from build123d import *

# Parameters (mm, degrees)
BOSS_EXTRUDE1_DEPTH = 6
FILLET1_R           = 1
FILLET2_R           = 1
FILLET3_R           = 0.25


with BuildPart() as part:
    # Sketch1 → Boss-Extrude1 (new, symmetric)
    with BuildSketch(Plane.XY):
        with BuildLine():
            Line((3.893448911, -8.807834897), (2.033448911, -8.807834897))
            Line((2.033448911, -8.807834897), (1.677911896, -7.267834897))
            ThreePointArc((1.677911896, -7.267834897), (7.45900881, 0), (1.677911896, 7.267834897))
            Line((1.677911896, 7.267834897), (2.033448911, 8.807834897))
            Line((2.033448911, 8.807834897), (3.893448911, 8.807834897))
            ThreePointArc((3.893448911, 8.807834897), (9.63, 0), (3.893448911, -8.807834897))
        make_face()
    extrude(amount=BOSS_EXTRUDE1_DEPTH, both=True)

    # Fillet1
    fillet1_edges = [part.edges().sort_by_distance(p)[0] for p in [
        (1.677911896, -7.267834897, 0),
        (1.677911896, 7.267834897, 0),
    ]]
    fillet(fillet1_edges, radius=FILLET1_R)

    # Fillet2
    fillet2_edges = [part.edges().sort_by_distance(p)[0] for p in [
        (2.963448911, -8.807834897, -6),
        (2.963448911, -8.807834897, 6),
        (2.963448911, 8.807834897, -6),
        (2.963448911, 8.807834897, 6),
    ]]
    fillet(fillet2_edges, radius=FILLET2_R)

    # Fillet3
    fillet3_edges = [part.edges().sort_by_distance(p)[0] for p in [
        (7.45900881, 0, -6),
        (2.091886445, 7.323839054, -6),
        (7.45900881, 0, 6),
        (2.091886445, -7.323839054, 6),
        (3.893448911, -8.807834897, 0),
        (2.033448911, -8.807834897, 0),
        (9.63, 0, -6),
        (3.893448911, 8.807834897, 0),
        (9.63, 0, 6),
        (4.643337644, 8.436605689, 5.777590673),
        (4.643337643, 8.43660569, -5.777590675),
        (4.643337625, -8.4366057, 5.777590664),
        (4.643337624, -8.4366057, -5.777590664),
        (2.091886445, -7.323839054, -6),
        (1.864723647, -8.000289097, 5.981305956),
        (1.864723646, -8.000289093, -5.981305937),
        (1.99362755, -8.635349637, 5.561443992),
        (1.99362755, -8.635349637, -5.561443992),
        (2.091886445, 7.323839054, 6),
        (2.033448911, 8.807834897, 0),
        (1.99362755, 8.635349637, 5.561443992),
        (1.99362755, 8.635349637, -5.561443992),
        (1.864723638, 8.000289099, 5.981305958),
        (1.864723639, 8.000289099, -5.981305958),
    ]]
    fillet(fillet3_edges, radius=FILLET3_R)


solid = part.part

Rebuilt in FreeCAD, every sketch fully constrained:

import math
import FreeCAD as App
import Part
import Sketcher
Q = App.Units.Quantity


def edges_at(feature, points):
    """Names of the edges that pass closest to the given points."""
    edges = feature.Shape.Edges
    near = lambda p: min(range(len(edges)), key=lambda i: edges[i].distToShape(Part.Vertex(*p))[0])
    return sorted({f"Edge{near(p) + 1}" for p in points})

doc = App.newDocument("Part")
params = doc.addObject("Spreadsheet::Sheet", "Params")
for row, (alias, value) in enumerate([
    ("sketch1_radius", "9.63 mm"),
    ("sketch1_width", "1.86 mm"),
    ("pad1_length", "12 mm"),
    ("fillet_radius", "1 mm"),
    ("fillet2_radius", "1 mm"),
    ("fillet3_radius", "0.25 mm"),
], start=1):
    params.set(f"A{row}", alias)
    params.set(f"B{row}", "=" + value)
    params.setAlias(f"B{row}", alias)

body = doc.addObject("PartDesign::Body", "Body")

# Sketch on XY plane
sketch1 = body.newObject("Sketcher::SketchObject", "Sketch")
sketch1.AttachmentSupport = (doc.getObject("XY_Plane"), [""])
sketch1.MapMode = "FlatFace"
sketch1.addGeometry(Part.LineSegment(App.Vector(2, -8.8, 0), App.Vector(3.9, -8.8, 0)), False)
sketch1.addGeometry(Part.ArcOfCircle(Part.Circle(App.Vector(0, 0, 0), App.Vector(0, 0, 1), 9.6), math.radians(-66), math.radians(66)), False)
sketch1.addGeometry(Part.LineSegment(App.Vector(3.9, 8.8, 0), App.Vector(2, 8.8, 0)), False)
sketch1.addGeometry(Part.LineSegment(App.Vector(2, 8.8, 0), App.Vector(1.7, 7.3, 0)), False)
sketch1.addGeometry(Part.ArcOfCircle(Part.Circle(App.Vector(0, 0, 0), App.Vector(0, 0, 1), 7.5), math.radians(-77), math.radians(77)), False)
sketch1.addGeometry(Part.LineSegment(App.Vector(1.7, -7.3, 0), App.Vector(2, -8.8, 0)), False)
sketch1.addConstraint(Sketcher.Constraint("Coincident", 0, 2, 1, 1))
sketch1.addConstraint(Sketcher.Constraint("Coincident", 1, 2, 2, 1))
sketch1.addConstraint(Sketcher.Constraint("Coincident", 2, 2, 3, 1))
sketch1.addConstraint(Sketcher.Constraint("Coincident", 3, 2, 4, 2))
sketch1.addConstraint(Sketcher.Constraint("Coincident", 4, 1, 5, 1))
sketch1.addConstraint(Sketcher.Constraint("Coincident", 5, 2, 0, 1))
sketch1.addConstraint(Sketcher.Constraint("Horizontal", 0))
sketch1.addConstraint(Sketcher.Constraint("Horizontal", 2))
sketch1.addConstraint(Sketcher.Constraint("Coincident", 1, 3, -1, 1))
sketch1.addConstraint(Sketcher.Constraint("Coincident", 4, 3, -1, 1))
sketch1.addConstraint(Sketcher.Constraint("Symmetric", 2, 2, 5, 2, -1))
sketch1.addConstraint(Sketcher.Constraint("Vertical", 3, 2, 4, 1))
sketch1.addConstraint(Sketcher.Constraint("Angle", 3, Q("-103 deg")))
sketch1.addConstraint(Sketcher.Constraint("Radius", 1, Q("9.63 mm")))
sketch1.addConstraint(Sketcher.Constraint("DistanceX", 0, 1, 0, 2, Q("1.86 mm")))
sketch1.addConstraint(Sketcher.Constraint("Radius", 4, Q("7.459009 mm")))
sketch1.addConstraint(Sketcher.Constraint("DistanceY", 3, 2, 2, 2, Q("1.54 mm")))
sketch1.setExpression("Constraints[13]", "Params.sketch1_radius")
sketch1.setExpression("Constraints[14]", "Params.sketch1_width")
pad1 = body.newObject("PartDesign::Pad", "Pad")
pad1.Profile = sketch1
pad1.setExpression("Length", "Params.pad1_length")
pad1.Midplane = True
doc.recompute()

fillet = body.newObject("PartDesign::Fillet", "Fillet")
fillet.Base = (pad1, edges_at(pad1, [(1.678, -7.268, 0), (1.678, 7.268, 0)]))
fillet.setExpression("Radius", "Params.fillet_radius")
doc.recompute()

fillet2 = body.newObject("PartDesign::Fillet", "Fillet001")
fillet2.Base = (fillet, edges_at(fillet, [
    (2.963, -8.808, -6),
    (2.963, -8.808, 6),
    (2.963, 8.808, -6),
    (2.963, 8.808, 6),
]))
fillet2.setExpression("Radius", "Params.fillet2_radius")
doc.recompute()

fillet3 = body.newObject("PartDesign::Fillet", "Fillet002")
fillet3.Base = (fillet2, edges_at(fillet2, [
    (7.459, 0, -6),
    (2.092, 7.324, -6),
    (7.459, 0, 6),
    (2.092, -7.324, 6),
    (3.893, -8.808, 0),
    (2.033, -8.808, 0),
    (9.63, 0, -6),
    (3.893, 8.808, 0),
    (9.63, 0, 6),
    (4.643, 8.437, 5.778),
    (4.643, 8.437, -5.778),
    (4.643, -8.437, 5.778),
    (4.643, -8.437, -5.778),
    (2.092, -7.324, -6),
    (1.865, -8, 5.981),
    (1.865, -8, -5.981),
    (1.994, -8.635, 5.561),
    (1.994, -8.635, -5.561),
    (2.092, 7.324, 6),
    (2.033, 8.808, 0),
    (1.994, 8.635, 5.561),
    (1.994, 8.635, -5.561),
    (1.865, 8, 5.981),
    (1.865, 8, -5.981),
]))
fillet3.setExpression("Radius", "Params.fillet3_radius")

doc.recompute()
